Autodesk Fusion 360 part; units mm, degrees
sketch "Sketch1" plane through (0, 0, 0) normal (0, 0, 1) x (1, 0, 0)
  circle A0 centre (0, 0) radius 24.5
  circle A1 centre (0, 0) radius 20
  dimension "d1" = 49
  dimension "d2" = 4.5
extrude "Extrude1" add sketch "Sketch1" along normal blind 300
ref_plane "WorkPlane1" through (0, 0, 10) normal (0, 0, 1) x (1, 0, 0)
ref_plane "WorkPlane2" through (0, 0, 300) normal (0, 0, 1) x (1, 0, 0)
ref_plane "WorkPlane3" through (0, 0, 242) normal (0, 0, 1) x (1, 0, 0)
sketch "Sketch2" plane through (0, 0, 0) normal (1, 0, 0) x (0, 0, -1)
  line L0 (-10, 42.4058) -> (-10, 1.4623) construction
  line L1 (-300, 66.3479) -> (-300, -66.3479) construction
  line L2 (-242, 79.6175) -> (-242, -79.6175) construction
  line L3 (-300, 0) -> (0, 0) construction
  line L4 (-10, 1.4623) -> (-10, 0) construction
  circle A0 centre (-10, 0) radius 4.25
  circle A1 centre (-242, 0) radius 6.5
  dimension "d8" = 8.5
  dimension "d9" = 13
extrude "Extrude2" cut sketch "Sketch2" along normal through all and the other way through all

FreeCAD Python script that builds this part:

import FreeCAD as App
import Part
import Sketcher
from FreeCAD import Vector
Q = App.Units.Quantity

doc = App.newDocument("Part")
body = doc.addObject("PartDesign::Body", "Body")

sketch1 = body.newObject("Sketcher::SketchObject", "Sketch")
sketch1.AttachmentSupport = (doc.getObject("XY_Plane"), [""])
sketch1.MapMode = "FlatFace"
sketch1.addGeometry([
    Part.Circle(Vector(0, 0, 0), Vector(0, 0, 1), 24),
    Part.Circle(Vector(0, 0, 0), Vector(0, 0, 1), 20),
], False)
sketch1.addConstraint([
    Sketcher.Constraint("Coincident", 0, 3, -1, 1),
    Sketcher.Constraint("Coincident", 1, 3, -1, 1),
    Sketcher.Constraint("Diameter", 0, Q("49 mm")),
    Sketcher.Constraint("Diameter", 1, Q("40 mm")),
])
pad1 = body.newObject("PartDesign::Pad", "Pad")
pad1.Profile = sketch1
pad1.Length = 300

sketch2 = body.newObject("Sketcher::SketchObject", "Sketch001")
sketch2.AttachmentSupport = (doc.getObject("YZ_Plane"), [""])
sketch2.MapMode = "FlatFace"
sketch2.addGeometry([
    Part.Circle(Vector(0, 10, 0), Vector(0, 0, 1), 4.2),
    Part.Circle(Vector(0, 242, 0), Vector(0, 0, 1), 6.5),
], False)
sketch2.addConstraint([
    Sketcher.Constraint("PointOnObject", 0, 3, -2),
    Sketcher.Constraint("PointOnObject", 1, 3, -2),
    Sketcher.Constraint("Diameter", 1, Q("13 mm")),
    Sketcher.Constraint("Diameter", 0, Q("8.5 mm")),
    Sketcher.Constraint("DistanceY", -1, 1, 0, 3, Q("10 mm")),
    Sketcher.Constraint("DistanceY", -1, 1, 1, 3, Q("242 mm")),
])
pocket1 = body.newObject("PartDesign::Pocket", "Pocket")
pocket1.Profile = sketch2
pocket1.Type = "ThroughAll"
pocket1.Midplane = True

doc.recompute()
